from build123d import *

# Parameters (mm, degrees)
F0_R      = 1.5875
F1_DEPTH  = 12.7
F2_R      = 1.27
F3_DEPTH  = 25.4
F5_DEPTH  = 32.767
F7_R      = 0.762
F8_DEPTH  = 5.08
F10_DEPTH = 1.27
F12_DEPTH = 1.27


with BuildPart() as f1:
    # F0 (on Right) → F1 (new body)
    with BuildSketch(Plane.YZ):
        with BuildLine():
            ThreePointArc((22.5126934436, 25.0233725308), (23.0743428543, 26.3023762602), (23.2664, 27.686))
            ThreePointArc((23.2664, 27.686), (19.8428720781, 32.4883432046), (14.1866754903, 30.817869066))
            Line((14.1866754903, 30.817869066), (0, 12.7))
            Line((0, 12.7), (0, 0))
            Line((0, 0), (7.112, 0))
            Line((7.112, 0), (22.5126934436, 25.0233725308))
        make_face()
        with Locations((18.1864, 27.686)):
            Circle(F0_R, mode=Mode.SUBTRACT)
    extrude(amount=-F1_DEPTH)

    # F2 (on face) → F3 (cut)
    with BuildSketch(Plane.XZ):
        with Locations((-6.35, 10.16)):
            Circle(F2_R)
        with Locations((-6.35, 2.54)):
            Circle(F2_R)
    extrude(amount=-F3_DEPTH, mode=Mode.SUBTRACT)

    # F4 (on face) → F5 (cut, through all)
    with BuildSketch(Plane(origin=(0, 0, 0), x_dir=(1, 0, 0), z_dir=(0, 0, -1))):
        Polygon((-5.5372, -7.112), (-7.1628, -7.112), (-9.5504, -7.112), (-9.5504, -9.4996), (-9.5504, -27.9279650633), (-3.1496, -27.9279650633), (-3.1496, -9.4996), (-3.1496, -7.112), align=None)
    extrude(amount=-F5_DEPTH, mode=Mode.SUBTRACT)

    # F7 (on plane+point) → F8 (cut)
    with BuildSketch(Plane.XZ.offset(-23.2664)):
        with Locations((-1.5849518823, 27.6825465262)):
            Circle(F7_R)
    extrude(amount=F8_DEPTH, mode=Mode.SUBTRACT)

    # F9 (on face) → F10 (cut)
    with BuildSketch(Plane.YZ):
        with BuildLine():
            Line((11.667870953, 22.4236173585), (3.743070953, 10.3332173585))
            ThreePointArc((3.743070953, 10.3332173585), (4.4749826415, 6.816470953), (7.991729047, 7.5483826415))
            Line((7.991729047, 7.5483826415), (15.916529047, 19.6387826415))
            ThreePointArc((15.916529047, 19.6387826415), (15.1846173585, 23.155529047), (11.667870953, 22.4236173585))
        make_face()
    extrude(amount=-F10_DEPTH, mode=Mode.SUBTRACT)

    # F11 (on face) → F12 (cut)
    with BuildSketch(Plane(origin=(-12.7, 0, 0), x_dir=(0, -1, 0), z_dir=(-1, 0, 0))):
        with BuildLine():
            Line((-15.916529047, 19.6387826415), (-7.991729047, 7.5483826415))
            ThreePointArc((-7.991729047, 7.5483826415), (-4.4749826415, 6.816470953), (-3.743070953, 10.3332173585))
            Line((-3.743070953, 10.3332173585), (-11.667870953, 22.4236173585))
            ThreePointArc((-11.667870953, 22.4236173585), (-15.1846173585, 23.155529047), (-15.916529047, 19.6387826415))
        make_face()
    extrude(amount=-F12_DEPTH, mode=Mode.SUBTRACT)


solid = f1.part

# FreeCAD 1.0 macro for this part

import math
import FreeCAD as App
import Part
import Sketcher
from FreeCAD import Vector
Q = App.Units.Quantity


def add_polygon(sketch, points):
    """Adds a closed chain of lines whose ends are joined by coincident constraints."""
    first, n = sketch.GeometryCount, len(points)
    for a, b in zip(points, points[1:] + points[:1]):
        sketch.addGeometry(Part.LineSegment(App.Vector(*a, 0), App.Vector(*b, 0)), False)
    for i in range(n):
        sketch.addConstraint(Sketcher.Constraint("Coincident", first + i, 2, first + (i + 1) % n, 1))

doc = App.newDocument("Part")
body = doc.addObject("PartDesign::Body", "Body")

# Sketch on YZ plane
sketch1 = body.newObject("Sketcher::SketchObject", "Sketch")
sketch1.AttachmentSupport = (doc.getObject("YZ_Plane"), [""])
sketch1.MapMode = "FlatFace"
sketch1.addGeometry([
    Part.ArcOfCircle(Part.Circle(Vector(18.2, 27.7, 0), Vector(0, 0, 1), 5.1), math.radians(-32), math.radians(0)),  # 0
    Part.ArcOfCircle(Part.Circle(Vector(18.2, 27.7, 0), Vector(0, 0, 1), 5.1), math.radians(0), math.radians(142)),  # 1
    Part.LineSegment(Vector(14.2, 30.8, 0), Vector(0, 12.7, 0)),  # 2
    Part.LineSegment(Vector(0, 12.7, 0), Vector(0, 0, 0)),  # 3
    Part.LineSegment(Vector(0, 0, 0), Vector(7.1, 0, 0)),  # 4
    Part.LineSegment(Vector(7.1, 0, 0), Vector(22.5, 25, 0)),  # 5
    Part.Circle(Vector(18.2, 27.7, 0), Vector(0, 0, 1), 1.6),  # 6
], False)
sketch1.addConstraint([
    Sketcher.Constraint("Tangent", 0, 2, 1, 1),
    Sketcher.Constraint("Tangent", 1, 2, 2, 1),
    Sketcher.Constraint("Coincident", 2, 2, 3, 1),
    Sketcher.Constraint("Coincident", 3, 2, 4, 1),
    Sketcher.Constraint("Coincident", 4, 2, 5, 1),
    Sketcher.Constraint("Tangent", 5, 2, 0, 1),
    Sketcher.Constraint("Vertical", 3),
    Sketcher.Constraint("Horizontal", 4),
    Sketcher.Constraint("Coincident", 3, 2, -1, 1),
    Sketcher.Constraint("Coincident", 6, 3, 0, 3),
    Sketcher.Constraint("Equal", 0, 1),
    Sketcher.Constraint("Horizontal", 6, 3, 0, 2),
    Sketcher.Constraint("Radius", 0, Q("0.2 in")),
    Sketcher.Constraint("Diameter", 6, Q("0.125 in")),
    Sketcher.Constraint("DistanceY", 3, 2, 3, 1, Q("0.5 in")),
    Sketcher.Constraint("DistanceX", 4, 1, 4, 2, Q("0.28 in")),
    Sketcher.Constraint("DistanceY", -1, 1, 0, 3, Q("1.09 in")),
    Sketcher.Constraint("DistanceX", -1, 1, 0, 3, Q("0.716 in")),
])
pad1 = body.newObject("PartDesign::Pad", "Pad")
pad1.Profile = sketch1
pad1.Length = Q("0.5 in")
pad1.Reversed = True

# Sketch on XZ plane
sketch2 = body.newObject("Sketcher::SketchObject", "Sketch001")
sketch2.AttachmentSupport = (doc.getObject("XZ_Plane"), [""])
sketch2.MapMode = "FlatFace"
sketch2.addGeometry([
    Part.Circle(Vector(-6.3, 10.2, 0), Vector(0, 0, 1), 1.3),
    Part.Circle(Vector(-6.3, 2.5, 0), Vector(0, 0, 1), 1.3),
], False)
sketch2.addConstraint([
    Sketcher.Constraint("Equal", 0, 1),
    Sketcher.Constraint("Vertical", 0, 3, 1, 3),
    Sketcher.Constraint("Diameter", 0, Q("0.1 in")),
    Sketcher.Constraint("DistanceY", -1, 1, 0, 3, Q("0.4 in")),
    Sketcher.Constraint("DistanceY", -1, 1, 1, 3, Q("0.1 in")),
    Sketcher.Constraint("DistanceX", 0, 3, -1, 1, Q("0.25 in")),
])
pocket1 = body.newObject("PartDesign::Pocket", "Pocket")
pocket1.Profile = sketch2
pocket1.Length = Q("1 in")

# Sketch on XY plane
sketch3 = body.newObject("Sketcher::SketchObject", "Sketch002")
sketch3.AttachmentSupport = (doc.getObject("XY_Plane"), [""])
sketch3.MapMode = "FlatFace"
add_polygon(sketch3, [(-10, 7), (-10, 28), (-3, 28), (-3, 7)])  # lines 0-3
sketch3.addConstraint([
    Sketcher.Constraint("Vertical", 0),
    Sketcher.Constraint("Horizontal", 1),
    Sketcher.Constraint("Vertical", 2),
    Sketcher.Constraint("Horizontal", 3),
    Sketcher.Constraint("DistanceX", 1, 1, 1, 2, Q("0.252 in")),
    Sketcher.Constraint("DistanceY", -1, 1, 2, 2, Q("0.28 in")),
    Sketcher.Constraint("DistanceX", 0, 2, -1, 1, Q("0.376 in")),
    Sketcher.Constraint("DistanceY", 0, 1, 0, 2, 20.815965),
])
pocket2 = body.newObject("PartDesign::Pocket", "Pocket001")
pocket2.Profile = sketch3
pocket2.Type = "ThroughAll"
pocket2.Reversed = True

# Sketch on XZ plane
sketch4 = body.newObject("Sketcher::SketchObject", "Sketch003")
sketch4.AttachmentSupport = (doc.getObject("XZ_Plane"), [""])
sketch4.MapMode = "FlatFace"
sketch4.AttachmentOffset = App.Placement(Vector(0, 0, -0.916 * 25.4), App.Rotation())
sketch4.addGeometry(Part.Circle(Vector(-1.6, 27.7, 0), Vector(0, 0, 1), 0.8), False)
sketch4.addConstraint([
    Sketcher.Constraint("Diameter", 0, Q("0.06 in")),
    Sketcher.Constraint("DistanceX", 0, 3, -1, 1, 1.584952),
    Sketcher.Constraint("DistanceY", -1, 1, 0, 3, 27.682547),
])
pocket3 = body.newObject("PartDesign::Pocket", "Pocket002")
pocket3.Profile = sketch4
pocket3.Length = Q("0.2 in")
pocket3.Reversed = True

# Sketch on YZ plane
sketch5 = body.newObject("Sketcher::SketchObject", "Sketch004")
sketch5.AttachmentSupport = (doc.getObject("YZ_Plane"), [""])
sketch5.MapMode = "FlatFace"
sketch5.addGeometry([
    Part.LineSegment(Vector(11.7, 22.4, 0), Vector(3.7, 10.3, 0)),
    Part.ArcOfCircle(Part.Circle(Vector(5.9, 8.9, 0), Vector(0, 0, 1), 2.5), math.radians(147), math.radians(327)),
    Part.LineSegment(Vector(8, 7.5, 0), Vector(15.9, 19.6, 0)),
    Part.ArcOfCircle(Part.Circle(Vector(13.8, 21, 0), Vector(0, 0, 1), 2.5), math.radians(-33), math.radians(147)),
], False)
sketch5.addConstraint([
    Sketcher.Constraint("Tangent", 0, 2, 1, 1),
    Sketcher.Constraint("Tangent", 1, 2, 2, 1),
    Sketcher.Constraint("Tangent", 2, 2, 3, 1),
    Sketcher.Constraint("Tangent", 3, 2, 0, 1),
    Sketcher.Constraint("Equal", 1, 3),
    Sketcher.Constraint("Radius", 1, Q("0.1 in")),
    Sketcher.Constraint("DistanceX", -1, 1, 1, 3, Q("0.231 in")),
    Sketcher.Constraint("DistanceY", -1, 1, 1, 3, Q("0.352 in")),
    Sketcher.Constraint("DistanceX", -1, 1, 3, 3, Q("0.543 in")),
    Sketcher.Constraint("DistanceY", -1, 1, 3, 3, Q("0.828 in")),
])
pocket4 = body.newObject("PartDesign::Pocket", "Pocket003")
pocket4.Profile = sketch5
pocket4.Length = Q("0.05 in")

# Sketch on YZ plane
sketch6 = body.newObject("Sketcher::SketchObject", "Sketch005")
sketch6.AttachmentSupport = (doc.getObject("YZ_Plane"), [""])
sketch6.MapMode = "FlatFace"
sketch6.AttachmentOffset = App.Placement(Vector(0, 0, -0.5 * 25.4), App.Rotation())
sketch6.addGeometry([
    Part.LineSegment(Vector(15.9, 19.6, 0), Vector(8, 7.5, 0)),
    Part.ArcOfCircle(Part.Circle(Vector(5.9, 8.9, 0), Vector(0, 0, 1), 2.5), math.radians(147), math.radians(327)),
    Part.LineSegment(Vector(3.7, 10.3, 0), Vector(11.7, 22.4, 0)),
    Part.ArcOfCircle(Part.Circle(Vector(13.8, 21, 0), Vector(0, 0, 1), 2.5), math.radians(-33), math.radians(147)),
], False)
sketch6.addConstraint([
    Sketcher.Constraint("Tangent", 0, 2, 1, 2),
    Sketcher.Constraint("Tangent", 1, 1, 2, 1),
    Sketcher.Constraint("Tangent", 2, 2, 3, 2),
    Sketcher.Constraint("Tangent", 3, 1, 0, 1),
    Sketcher.Constraint("Equal", 1, 3),
    Sketcher.Constraint("Radius", 1, Q("0.1 in")),
    Sketcher.Constraint("DistanceX", -1, 1, 1, 3, Q("0.231 in")),
    Sketcher.Constraint("DistanceY", -1, 1, 1, 3, Q("0.352 in")),
    Sketcher.Constraint("DistanceX", -1, 1, 3, 3, Q("0.543 in")),
    Sketcher.Constraint("DistanceY", -1, 1, 3, 3, Q("0.828 in")),
])
pocket5 = body.newObject("PartDesign::Pocket", "Pocket004")
pocket5.Profile = sketch6
pocket5.Length = Q("0.05 in")
pocket5.Reversed = True

doc.recompute()
